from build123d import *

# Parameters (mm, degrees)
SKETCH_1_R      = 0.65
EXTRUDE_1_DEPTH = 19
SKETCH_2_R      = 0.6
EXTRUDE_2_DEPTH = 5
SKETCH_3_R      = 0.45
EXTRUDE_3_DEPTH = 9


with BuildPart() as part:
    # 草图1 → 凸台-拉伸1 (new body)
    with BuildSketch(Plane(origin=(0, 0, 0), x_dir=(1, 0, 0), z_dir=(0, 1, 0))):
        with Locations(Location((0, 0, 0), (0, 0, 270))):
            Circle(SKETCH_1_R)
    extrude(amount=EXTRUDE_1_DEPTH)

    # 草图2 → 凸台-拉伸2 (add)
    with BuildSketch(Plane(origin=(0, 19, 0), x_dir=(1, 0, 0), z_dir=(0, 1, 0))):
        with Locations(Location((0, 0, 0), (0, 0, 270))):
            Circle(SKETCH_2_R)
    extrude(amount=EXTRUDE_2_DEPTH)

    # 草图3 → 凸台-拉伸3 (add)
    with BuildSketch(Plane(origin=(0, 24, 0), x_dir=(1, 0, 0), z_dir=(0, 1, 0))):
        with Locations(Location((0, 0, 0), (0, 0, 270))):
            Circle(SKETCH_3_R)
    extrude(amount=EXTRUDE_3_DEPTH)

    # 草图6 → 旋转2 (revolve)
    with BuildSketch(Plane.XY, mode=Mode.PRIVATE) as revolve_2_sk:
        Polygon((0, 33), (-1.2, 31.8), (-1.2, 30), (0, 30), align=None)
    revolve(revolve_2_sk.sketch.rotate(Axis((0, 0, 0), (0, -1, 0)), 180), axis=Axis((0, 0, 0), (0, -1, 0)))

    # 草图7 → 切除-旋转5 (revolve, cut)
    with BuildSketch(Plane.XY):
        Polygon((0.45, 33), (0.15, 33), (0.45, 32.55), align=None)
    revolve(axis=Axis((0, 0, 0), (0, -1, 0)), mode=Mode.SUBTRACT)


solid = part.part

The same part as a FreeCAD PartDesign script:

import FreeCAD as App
import Part
import Sketcher
from FreeCAD import Vector
Q = App.Units.Quantity

doc = App.newDocument("Part")
body = doc.addObject("PartDesign::Body", "Body")

sketch1 = body.newObject("Sketcher::SketchObject", "Sketch")
sketch1.AttachmentSupport = (doc.getObject("XZ_Plane"), [""])
sketch1.MapMode = "FlatFace"
sketch1.addGeometry(Part.Circle(Vector(0, 0, 0), Vector(0, 0, 1), 0.7), False)
sketch1.addConstraint([
    Sketcher.Constraint("Coincident", 0, 3, -1, 1),
    Sketcher.Constraint("Diameter", 0, 1.3),
])
pad1 = body.newObject("PartDesign::Pad", "Pad")
pad1.Profile = sketch1
pad1.Length = 19
pad1.Reversed = True

sketch2 = body.newObject("Sketcher::SketchObject", "Sketch001")
sketch2.AttachmentSupport = (doc.getObject("XZ_Plane"), [""])
sketch2.MapMode = "FlatFace"
sketch2.AttachmentOffset = App.Placement(Vector(0, 0, -19), App.Rotation())
sketch2.addGeometry(Part.Circle(Vector(0, 0, 0), Vector(0, 0, 1), 0.6), False)
sketch2.addConstraint([
    Sketcher.Constraint("Coincident", 0, 3, -1, 1),
    Sketcher.Constraint("Diameter", 0, 1.2),
])
pad2 = body.newObject("PartDesign::Pad", "Pad001")
pad2.Profile = sketch2
pad2.Length = 5
pad2.Reversed = True

sketch3 = body.newObject("Sketcher::SketchObject", "Sketch002")
sketch3.AttachmentSupport = (doc.getObject("XZ_Plane"), [""])
sketch3.MapMode = "FlatFace"
sketch3.AttachmentOffset = App.Placement(Vector(0, 0, -24), App.Rotation())
sketch3.addGeometry(Part.Circle(Vector(0, 0, 0), Vector(0, 0, 1), 0.45), False)
sketch3.addConstraint([
    Sketcher.Constraint("Coincident", 0, 3, -1, 1),
    Sketcher.Constraint("Diameter", 0, 0.9),
])
pad3 = body.newObject("PartDesign::Pad", "Pad002")
pad3.Profile = sketch3
pad3.Length = 9
pad3.Reversed = True

sketch4 = body.newObject("Sketcher::SketchObject", "Sketch003")
sketch4.AttachmentSupport = (doc.getObject("XY_Plane"), [""])
sketch4.MapMode = "FlatFace"
sketch4.addGeometry([
    Part.LineSegment(Vector(0, 33, 0), Vector(-1.2, 31.8, 0)),
    Part.LineSegment(Vector(-1.2, 31.8, 0), Vector(-1.2, 30, 0)),
    Part.LineSegment(Vector(-1.2, 30, 0), Vector(0, 30, 0)),
    Part.LineSegment(Vector(0, 30, 0), Vector(0, 33, 0)),
], False)
sketch4.addConstraint([
    Sketcher.Constraint("Coincident", 0, 2, 1, 1),
    Sketcher.Constraint("Coincident", 1, 2, 2, 1),
    Sketcher.Constraint("Coincident", 2, 2, 3, 1),
    Sketcher.Constraint("Coincident", 3, 2, 0, 1),
    Sketcher.Constraint("Vertical", 1),
    Sketcher.Constraint("Horizontal", 2),
    Sketcher.Constraint("Vertical", 3),
    Sketcher.Constraint("PointOnObject", 2, 2, -2),
    Sketcher.Constraint("DistanceY", 3, 1, 3, 2, 3.0),
    Sketcher.Constraint("Angle", 0, Q("-135 deg")),
    Sketcher.Constraint("DistanceX", 2, 1, 2, 2, 1.2),
    Sketcher.Constraint("DistanceY", -1, 1, 1, 2, 30.0),
])
revolution = body.newObject("PartDesign::Revolution", "Revolution")
revolution.Profile = sketch4
revolution.ReferenceAxis = (sketch4, ["V_Axis"])
revolution.Angle = 360

sketch5 = body.newObject("Sketcher::SketchObject", "Sketch004")
sketch5.AttachmentSupport = (doc.getObject("XY_Plane"), [""])
sketch5.MapMode = "FlatFace"
sketch5.addGeometry([
    Part.LineSegment(Vector(0.45, 33, 0), Vector(0.15, 33, 0)),
    Part.LineSegment(Vector(0.15, 33, 0), Vector(0.45, 32.55, 0)),
    Part.LineSegment(Vector(0.45, 32.55, 0), Vector(0.45, 33, 0)),
], False)
sketch5.addConstraint([
    Sketcher.Constraint("Coincident", 0, 2, 1, 1),
    Sketcher.Constraint("Coincident", 1, 2, 2, 1),
    Sketcher.Constraint("Coincident", 2, 2, 0, 1),
    Sketcher.Constraint("Horizontal", 0),
    Sketcher.Constraint("Vertical", 2),
    Sketcher.Constraint("DistanceX", 0, 2, 0, 1, 0.3),
    Sketcher.Constraint("DistanceY", -1, 1, 0, 2, 33.0),
    Sketcher.Constraint("DistanceY", 2, 1, 2, 2, 0.45),
    Sketcher.Constraint("DistanceX", -1, 1, 0, 2, 0.15),
])
groove = body.newObject("PartDesign::Groove", "Groove")
groove.Profile = sketch5
groove.ReferenceAxis = (sketch5, ["V_Axis"])
groove.Angle = 360

doc.recompute()
